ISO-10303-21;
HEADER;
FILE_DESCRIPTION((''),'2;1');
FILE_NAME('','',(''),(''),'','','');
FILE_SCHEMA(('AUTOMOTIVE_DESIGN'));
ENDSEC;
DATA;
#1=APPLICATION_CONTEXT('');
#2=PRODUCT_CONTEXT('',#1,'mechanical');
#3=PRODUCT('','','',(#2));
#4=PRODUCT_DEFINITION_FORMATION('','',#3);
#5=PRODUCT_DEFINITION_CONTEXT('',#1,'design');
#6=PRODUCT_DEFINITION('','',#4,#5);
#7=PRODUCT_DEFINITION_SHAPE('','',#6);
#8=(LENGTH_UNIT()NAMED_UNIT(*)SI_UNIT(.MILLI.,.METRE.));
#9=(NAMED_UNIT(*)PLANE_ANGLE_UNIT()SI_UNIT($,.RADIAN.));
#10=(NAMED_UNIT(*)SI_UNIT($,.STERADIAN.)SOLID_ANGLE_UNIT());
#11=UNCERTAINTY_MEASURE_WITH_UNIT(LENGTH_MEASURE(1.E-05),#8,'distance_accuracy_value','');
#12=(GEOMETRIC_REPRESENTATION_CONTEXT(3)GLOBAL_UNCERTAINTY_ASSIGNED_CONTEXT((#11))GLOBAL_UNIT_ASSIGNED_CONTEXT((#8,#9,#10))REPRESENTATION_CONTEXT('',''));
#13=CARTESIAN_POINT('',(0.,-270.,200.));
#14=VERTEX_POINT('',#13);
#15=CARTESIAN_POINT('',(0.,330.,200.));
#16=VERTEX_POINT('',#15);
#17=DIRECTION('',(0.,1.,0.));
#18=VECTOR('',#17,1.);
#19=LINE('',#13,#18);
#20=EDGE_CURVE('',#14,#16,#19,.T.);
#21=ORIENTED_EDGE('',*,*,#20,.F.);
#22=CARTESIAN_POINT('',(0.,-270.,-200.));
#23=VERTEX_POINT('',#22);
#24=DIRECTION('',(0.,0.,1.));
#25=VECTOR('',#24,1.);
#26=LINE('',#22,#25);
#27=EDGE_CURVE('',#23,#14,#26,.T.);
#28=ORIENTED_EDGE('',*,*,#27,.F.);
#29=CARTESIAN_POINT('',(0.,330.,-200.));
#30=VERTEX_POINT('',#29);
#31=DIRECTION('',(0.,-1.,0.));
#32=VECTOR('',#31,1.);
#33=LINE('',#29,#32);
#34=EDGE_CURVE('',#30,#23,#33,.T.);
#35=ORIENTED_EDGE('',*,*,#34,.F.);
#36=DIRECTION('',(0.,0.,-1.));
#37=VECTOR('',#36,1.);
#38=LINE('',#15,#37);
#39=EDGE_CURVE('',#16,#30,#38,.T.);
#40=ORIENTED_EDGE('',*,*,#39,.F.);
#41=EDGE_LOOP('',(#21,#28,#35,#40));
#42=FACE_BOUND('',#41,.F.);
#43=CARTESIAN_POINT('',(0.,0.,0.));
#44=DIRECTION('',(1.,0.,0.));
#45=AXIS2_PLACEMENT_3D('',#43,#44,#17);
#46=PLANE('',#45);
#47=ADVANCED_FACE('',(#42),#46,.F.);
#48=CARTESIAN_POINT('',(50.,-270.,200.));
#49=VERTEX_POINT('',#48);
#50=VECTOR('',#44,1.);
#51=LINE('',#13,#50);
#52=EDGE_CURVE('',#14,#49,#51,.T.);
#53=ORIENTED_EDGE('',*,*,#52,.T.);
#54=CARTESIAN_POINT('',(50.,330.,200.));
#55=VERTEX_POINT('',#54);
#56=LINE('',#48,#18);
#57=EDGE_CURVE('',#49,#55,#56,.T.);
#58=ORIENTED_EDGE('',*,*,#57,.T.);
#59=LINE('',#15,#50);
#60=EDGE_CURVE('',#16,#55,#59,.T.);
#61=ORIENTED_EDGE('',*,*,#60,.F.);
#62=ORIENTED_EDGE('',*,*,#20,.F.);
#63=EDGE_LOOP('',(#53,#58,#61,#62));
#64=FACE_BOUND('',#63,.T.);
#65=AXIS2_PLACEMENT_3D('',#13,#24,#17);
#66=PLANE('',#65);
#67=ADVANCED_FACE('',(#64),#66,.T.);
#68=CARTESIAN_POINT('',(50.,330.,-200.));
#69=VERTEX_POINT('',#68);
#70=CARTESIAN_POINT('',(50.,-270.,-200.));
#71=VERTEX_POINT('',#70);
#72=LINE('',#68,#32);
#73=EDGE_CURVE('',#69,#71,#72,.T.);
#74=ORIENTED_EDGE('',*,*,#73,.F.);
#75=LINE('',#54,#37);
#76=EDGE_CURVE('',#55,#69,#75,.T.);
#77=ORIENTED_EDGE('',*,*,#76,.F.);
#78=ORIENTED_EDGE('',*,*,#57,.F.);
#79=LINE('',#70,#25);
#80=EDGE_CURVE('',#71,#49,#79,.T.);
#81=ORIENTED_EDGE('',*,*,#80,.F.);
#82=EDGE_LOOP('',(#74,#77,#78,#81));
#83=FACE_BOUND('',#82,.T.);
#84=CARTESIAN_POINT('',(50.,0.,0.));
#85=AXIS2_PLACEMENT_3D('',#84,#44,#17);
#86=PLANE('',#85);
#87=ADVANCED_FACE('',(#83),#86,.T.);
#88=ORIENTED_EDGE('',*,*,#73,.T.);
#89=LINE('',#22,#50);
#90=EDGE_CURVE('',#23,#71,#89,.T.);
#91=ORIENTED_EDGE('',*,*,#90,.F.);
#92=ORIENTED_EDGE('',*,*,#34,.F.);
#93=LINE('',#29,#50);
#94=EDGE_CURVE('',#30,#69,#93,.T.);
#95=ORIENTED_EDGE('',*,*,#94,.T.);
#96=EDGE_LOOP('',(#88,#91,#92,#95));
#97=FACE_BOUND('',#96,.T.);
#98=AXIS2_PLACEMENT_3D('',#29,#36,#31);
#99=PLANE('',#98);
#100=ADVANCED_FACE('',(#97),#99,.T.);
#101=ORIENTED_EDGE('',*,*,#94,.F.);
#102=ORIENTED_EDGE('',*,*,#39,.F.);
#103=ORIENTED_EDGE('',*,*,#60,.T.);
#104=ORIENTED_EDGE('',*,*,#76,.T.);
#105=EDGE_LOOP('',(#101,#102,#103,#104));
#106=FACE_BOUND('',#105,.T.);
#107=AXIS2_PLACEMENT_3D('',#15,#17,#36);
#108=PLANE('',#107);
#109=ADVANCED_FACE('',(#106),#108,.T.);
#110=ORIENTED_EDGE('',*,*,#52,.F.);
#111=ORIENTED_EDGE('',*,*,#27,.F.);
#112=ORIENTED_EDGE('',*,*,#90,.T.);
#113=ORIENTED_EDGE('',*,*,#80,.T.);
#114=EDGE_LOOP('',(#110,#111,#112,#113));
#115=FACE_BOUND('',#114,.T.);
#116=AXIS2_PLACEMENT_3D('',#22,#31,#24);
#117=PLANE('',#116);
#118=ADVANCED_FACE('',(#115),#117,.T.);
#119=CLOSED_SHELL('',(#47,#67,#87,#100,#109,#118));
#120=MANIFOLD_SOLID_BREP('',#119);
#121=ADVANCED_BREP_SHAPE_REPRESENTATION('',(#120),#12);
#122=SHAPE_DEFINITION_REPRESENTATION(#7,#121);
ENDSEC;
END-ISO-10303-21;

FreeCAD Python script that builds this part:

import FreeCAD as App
import Part
import Sketcher
from FreeCAD import Vector
Q = App.Units.Quantity


def add_polygon(sketch, points):
    """Adds a closed chain of lines whose ends are joined by coincident constraints."""
    first, n = sketch.GeometryCount, len(points)
    for a, b in zip(points, points[1:] + points[:1]):
        sketch.addGeometry(Part.LineSegment(App.Vector(*a, 0), App.Vector(*b, 0)), False)
    for i in range(n):
        sketch.addConstraint(Sketcher.Constraint("Coincident", first + i, 2, first + (i + 1) % n, 1))

doc = App.newDocument("Part")
body = doc.addObject("PartDesign::Body", "Body")

# Sketch on YZ plane
sketch1 = doc.addObject("Sketcher::SketchObject", "Sketch")
body.addObject(sketch1)
sketch1.AttachmentSupport = (doc.YZ_Plane, [""])
sketch1.MapMode = "FlatFace"
add_polygon(sketch1, [(330, 200), (-270, 200), (-270, -200), (330, -200)])  # lines 0-3
sketch1.addConstraint(Sketcher.Constraint("Horizontal", 0))
sketch1.addConstraint(Sketcher.Constraint("Vertical", 1))
sketch1.addConstraint(Sketcher.Constraint("Horizontal", 2))
sketch1.addConstraint(Sketcher.Constraint("Vertical", 3))
sketch1.addConstraint(Sketcher.Constraint("DistanceX", 0, 2, 0, 1, Q("600 mm")))
sketch1.addConstraint(Sketcher.Constraint("DistanceY", 1, 2, 1, 1, Q("400 mm")))
sketch1.addConstraint(Sketcher.Constraint("DistanceX", 0, 2, -1, 1, Q("270 mm")))
sketch1.addConstraint(Sketcher.Constraint("DistanceY", -1, 1, 0, 2, Q("200 mm")))
pad1 = doc.addObject("PartDesign::Pad", "Pad")
body.addObject(pad1)
pad1.Profile = sketch1
pad1.Length = 50

doc.recompute()
